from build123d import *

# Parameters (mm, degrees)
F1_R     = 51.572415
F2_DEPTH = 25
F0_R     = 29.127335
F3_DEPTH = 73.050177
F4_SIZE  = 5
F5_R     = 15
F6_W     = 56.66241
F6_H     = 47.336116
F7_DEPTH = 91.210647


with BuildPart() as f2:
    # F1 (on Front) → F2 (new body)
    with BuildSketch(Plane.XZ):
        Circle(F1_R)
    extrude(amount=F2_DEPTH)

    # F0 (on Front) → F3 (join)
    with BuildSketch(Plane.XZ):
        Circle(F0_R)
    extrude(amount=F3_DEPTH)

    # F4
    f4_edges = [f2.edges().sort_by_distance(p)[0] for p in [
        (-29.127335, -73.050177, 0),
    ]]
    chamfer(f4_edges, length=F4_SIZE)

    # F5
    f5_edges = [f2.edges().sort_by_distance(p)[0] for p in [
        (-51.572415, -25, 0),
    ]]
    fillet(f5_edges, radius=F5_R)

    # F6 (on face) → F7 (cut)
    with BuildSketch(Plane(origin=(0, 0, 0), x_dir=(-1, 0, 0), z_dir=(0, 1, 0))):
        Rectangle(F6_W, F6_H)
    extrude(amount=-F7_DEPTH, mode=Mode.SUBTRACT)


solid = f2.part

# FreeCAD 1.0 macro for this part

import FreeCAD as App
import Part
import Sketcher

V = App.Vector
Q = App.Units.Quantity


def edges_at(feature, points):
    """Names of the edges that pass closest to the given points."""
    edges = feature.Shape.Edges
    near = lambda p: min(range(len(edges)), key=lambda i: edges[i].distToShape(Part.Vertex(*p))[0])
    return sorted({f"Edge{near(p) + 1}" for p in points})

doc = App.newDocument("Part")
body = doc.addObject("PartDesign::Body", "Body")

# Sketch on XZ plane
sketch1 = body.newObject("Sketcher::SketchObject", "Sketch")
sketch1.AttachmentSupport = (doc.getObject("XZ_Plane"), [""])
sketch1.MapMode = "FlatFace"
sketch1.addGeometry(Part.Circle(V(0, 0, 0), V(0, 0, 1), 52), False)
sketch1.addConstraint([
    Sketcher.Constraint("Coincident", 0, 3, -1, 1),
    Sketcher.Constraint("Diameter", 0, Q("103.14483 mm")),
])
pad1 = body.newObject("PartDesign::Pad", "Pad")
pad1.Profile = sketch1
pad1.Length = 25

# Sketch on XZ plane
sketch2 = body.newObject("Sketcher::SketchObject", "Sketch001")
sketch2.AttachmentSupport = (doc.getObject("XZ_Plane"), [""])
sketch2.MapMode = "FlatFace"
sketch2.addGeometry(Part.Circle(V(0, 0, 0), V(0, 0, 1), 29), False)
sketch2.addConstraint([
    Sketcher.Constraint("Coincident", 0, 3, -1, 1),
    Sketcher.Constraint("Diameter", 0, Q("58.25467 mm")),
])
pad2 = body.newObject("PartDesign::Pad", "Pad001")
pad2.Profile = sketch2
pad2.Length = 73.050177
doc.recompute()

chamfer = body.newObject("PartDesign::Chamfer", "Chamfer")
chamfer.Base = (pad2, edges_at(pad2, [(-29.127, -73.05, 0)]))
chamfer.Size = 5
doc.recompute()

fillet = body.newObject("PartDesign::Fillet", "Fillet")
fillet.Base = (chamfer, edges_at(chamfer, [(-51.572, -25, 0)]))
fillet.Radius = 15

# Sketch on XZ plane
sketch3 = body.newObject("Sketcher::SketchObject", "Sketch002")
sketch3.AttachmentSupport = (doc.getObject("XZ_Plane"), [""])
sketch3.MapMode = "FlatFace"
sketch3.addGeometry([
    Part.LineSegment(V(28, 24, 0), V(28, -24, 0)),
    Part.LineSegment(V(28, -24, 0), V(-28, -24, 0)),
    Part.LineSegment(V(-28, -24, 0), V(-28, 24, 0)),
    Part.LineSegment(V(-28, 24, 0), V(28, 24, 0)),
], False)
sketch3.addConstraint([
    Sketcher.Constraint("Coincident", 0, 2, 1, 1),
    Sketcher.Constraint("Coincident", 1, 2, 2, 1),
    Sketcher.Constraint("Coincident", 2, 2, 3, 1),
    Sketcher.Constraint("Coincident", 3, 2, 0, 1),
    Sketcher.Constraint("Vertical", 0),
    Sketcher.Constraint("Horizontal", 1),
    Sketcher.Constraint("Vertical", 2),
    Sketcher.Constraint("Horizontal", 3),
    Sketcher.Constraint("Symmetric", 0, 2, 2, 2, -1, 1),
    Sketcher.Constraint("DistanceX", 1, 2, 1, 1, Q("56.66241 mm")),
    Sketcher.Constraint("DistanceY", 0, 2, 0, 1, Q("47.336116 mm")),
])
pocket1 = body.newObject("PartDesign::Pocket", "Pocket")
pocket1.Profile = sketch3
pocket1.Length = 91.210647
pocket1.Reversed = True

doc.recompute()
